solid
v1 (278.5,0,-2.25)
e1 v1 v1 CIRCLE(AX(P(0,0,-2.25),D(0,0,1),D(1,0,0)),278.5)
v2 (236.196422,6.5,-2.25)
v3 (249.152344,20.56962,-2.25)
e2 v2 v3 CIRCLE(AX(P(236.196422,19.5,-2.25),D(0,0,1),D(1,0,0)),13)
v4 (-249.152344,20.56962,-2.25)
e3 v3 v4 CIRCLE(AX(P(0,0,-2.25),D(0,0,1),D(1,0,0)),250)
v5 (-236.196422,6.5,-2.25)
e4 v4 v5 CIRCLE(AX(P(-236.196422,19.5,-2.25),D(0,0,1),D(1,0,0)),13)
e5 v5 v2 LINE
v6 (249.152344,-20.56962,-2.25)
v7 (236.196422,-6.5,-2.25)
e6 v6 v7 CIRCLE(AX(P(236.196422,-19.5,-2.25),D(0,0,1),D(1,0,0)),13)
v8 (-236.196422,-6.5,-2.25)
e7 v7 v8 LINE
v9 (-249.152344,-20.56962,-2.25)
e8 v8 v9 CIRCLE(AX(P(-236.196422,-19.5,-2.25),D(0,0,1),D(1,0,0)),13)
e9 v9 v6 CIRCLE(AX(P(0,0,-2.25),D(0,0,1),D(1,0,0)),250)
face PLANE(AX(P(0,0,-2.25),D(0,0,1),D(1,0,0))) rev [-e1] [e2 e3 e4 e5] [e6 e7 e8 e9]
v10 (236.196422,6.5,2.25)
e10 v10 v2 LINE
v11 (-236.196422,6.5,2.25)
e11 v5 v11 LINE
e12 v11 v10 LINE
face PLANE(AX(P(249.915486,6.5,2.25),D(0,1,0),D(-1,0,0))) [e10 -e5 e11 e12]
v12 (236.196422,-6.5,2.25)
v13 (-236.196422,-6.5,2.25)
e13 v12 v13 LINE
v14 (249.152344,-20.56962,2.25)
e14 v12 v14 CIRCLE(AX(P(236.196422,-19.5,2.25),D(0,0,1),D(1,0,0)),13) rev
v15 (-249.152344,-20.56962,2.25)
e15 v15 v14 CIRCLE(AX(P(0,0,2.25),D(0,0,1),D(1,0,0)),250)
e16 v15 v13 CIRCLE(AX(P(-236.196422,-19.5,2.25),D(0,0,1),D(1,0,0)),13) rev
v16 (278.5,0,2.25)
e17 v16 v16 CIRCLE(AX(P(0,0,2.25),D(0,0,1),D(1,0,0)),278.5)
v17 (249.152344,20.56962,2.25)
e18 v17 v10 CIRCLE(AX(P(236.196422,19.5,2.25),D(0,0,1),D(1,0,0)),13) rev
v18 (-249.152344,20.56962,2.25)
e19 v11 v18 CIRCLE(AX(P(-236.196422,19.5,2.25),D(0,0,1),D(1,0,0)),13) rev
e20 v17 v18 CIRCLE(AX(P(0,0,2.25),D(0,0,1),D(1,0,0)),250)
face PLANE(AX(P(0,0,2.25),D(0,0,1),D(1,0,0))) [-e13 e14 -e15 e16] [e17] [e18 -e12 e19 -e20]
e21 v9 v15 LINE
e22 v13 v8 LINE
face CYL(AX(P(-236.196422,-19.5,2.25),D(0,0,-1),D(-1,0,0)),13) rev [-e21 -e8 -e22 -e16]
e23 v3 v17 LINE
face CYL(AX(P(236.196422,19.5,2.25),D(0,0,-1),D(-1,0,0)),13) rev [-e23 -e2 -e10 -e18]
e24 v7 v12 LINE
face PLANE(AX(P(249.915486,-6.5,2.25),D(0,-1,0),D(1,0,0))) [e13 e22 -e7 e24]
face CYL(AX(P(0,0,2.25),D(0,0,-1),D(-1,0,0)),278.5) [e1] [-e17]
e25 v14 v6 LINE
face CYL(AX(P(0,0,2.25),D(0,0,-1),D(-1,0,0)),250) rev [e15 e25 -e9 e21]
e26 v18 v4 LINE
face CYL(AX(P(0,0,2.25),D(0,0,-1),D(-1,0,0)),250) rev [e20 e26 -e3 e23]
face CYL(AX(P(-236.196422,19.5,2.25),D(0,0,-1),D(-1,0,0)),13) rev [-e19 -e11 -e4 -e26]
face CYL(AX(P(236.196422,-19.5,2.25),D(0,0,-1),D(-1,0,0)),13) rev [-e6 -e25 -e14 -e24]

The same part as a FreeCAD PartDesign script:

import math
import FreeCAD as App
import Part
import Sketcher
Q = App.Units.Quantity


def edges_at(feature, points):
    """Names of the edges that pass closest to the given points."""
    edges = feature.Shape.Edges
    near = lambda p: min(range(len(edges)), key=lambda i: edges[i].distToShape(Part.Vertex(*p))[0])
    return sorted({f"Edge{near(p) + 1}" for p in points})

doc = App.newDocument("Part")
body = doc.addObject("PartDesign::Body", "Body")

sketch1 = body.newObject("Sketcher::SketchObject", "Sketch")
sketch1.AttachmentSupport = (doc.getObject("XY_Plane"), [""])
sketch1.MapMode = "FlatFace"
sketch1.addGeometry([
    Part.Circle(App.Vector(0, 0, 0), App.Vector(0, 0, 1), 278),
    Part.LineSegment(App.Vector(-250, -6, 0), App.Vector(250, -6, 0)),
    Part.ArcOfCircle(Part.Circle(App.Vector(0, 0, 0), App.Vector(0, 0, 1), 250), math.radians(-179), math.radians(-1)),
    Part.ArcOfCircle(Part.Circle(App.Vector(0, 0, 0), App.Vector(0, 0, 1), 250), math.radians(1), math.radians(179)),
    Part.LineSegment(App.Vector(250, 6, 0), App.Vector(-250, 6, 0)),
], False)
sketch1.addConstraint([
    Sketcher.Constraint("Coincident", 1, 1, 2, 1),
    Sketcher.Constraint("Coincident", 2, 2, 1, 2),
    Sketcher.Constraint("Coincident", 3, 1, 4, 1),
    Sketcher.Constraint("Coincident", 4, 2, 3, 2),
    Sketcher.Constraint("Horizontal", 1),
    Sketcher.Constraint("Horizontal", 4),
    Sketcher.Constraint("Coincident", 0, 3, -1, 1),
    Sketcher.Constraint("Coincident", 2, 3, -1, 1),
    Sketcher.Constraint("Coincident", 3, 3, -1, 1),
    Sketcher.Constraint("Equal", 2, 3),
    Sketcher.Constraint("Vertical", 2, 2, 3, 1),
    Sketcher.Constraint("Diameter", 0, Q("557 mm")),
    Sketcher.Constraint("Radius", 2, Q("250 mm")),
    Sketcher.Constraint("DistanceY", 2, 2, 3, 1, Q("13 mm")),
])
pad1 = body.newObject("PartDesign::Pad", "Pad")
pad1.Profile = sketch1
pad1.Length = 4.5
pad1.Midplane = True
doc.recompute()

fillet = body.newObject("PartDesign::Fillet", "Fillet")
fillet.Base = (pad1, edges_at(pad1, [
    (-249.915, -6.5, 0),
    (249.915, -6.5, 0),
    (249.915, 6.5, 0),
    (-249.915, 6.5, 0),
]))
fillet.Radius = 13

doc.recompute()
